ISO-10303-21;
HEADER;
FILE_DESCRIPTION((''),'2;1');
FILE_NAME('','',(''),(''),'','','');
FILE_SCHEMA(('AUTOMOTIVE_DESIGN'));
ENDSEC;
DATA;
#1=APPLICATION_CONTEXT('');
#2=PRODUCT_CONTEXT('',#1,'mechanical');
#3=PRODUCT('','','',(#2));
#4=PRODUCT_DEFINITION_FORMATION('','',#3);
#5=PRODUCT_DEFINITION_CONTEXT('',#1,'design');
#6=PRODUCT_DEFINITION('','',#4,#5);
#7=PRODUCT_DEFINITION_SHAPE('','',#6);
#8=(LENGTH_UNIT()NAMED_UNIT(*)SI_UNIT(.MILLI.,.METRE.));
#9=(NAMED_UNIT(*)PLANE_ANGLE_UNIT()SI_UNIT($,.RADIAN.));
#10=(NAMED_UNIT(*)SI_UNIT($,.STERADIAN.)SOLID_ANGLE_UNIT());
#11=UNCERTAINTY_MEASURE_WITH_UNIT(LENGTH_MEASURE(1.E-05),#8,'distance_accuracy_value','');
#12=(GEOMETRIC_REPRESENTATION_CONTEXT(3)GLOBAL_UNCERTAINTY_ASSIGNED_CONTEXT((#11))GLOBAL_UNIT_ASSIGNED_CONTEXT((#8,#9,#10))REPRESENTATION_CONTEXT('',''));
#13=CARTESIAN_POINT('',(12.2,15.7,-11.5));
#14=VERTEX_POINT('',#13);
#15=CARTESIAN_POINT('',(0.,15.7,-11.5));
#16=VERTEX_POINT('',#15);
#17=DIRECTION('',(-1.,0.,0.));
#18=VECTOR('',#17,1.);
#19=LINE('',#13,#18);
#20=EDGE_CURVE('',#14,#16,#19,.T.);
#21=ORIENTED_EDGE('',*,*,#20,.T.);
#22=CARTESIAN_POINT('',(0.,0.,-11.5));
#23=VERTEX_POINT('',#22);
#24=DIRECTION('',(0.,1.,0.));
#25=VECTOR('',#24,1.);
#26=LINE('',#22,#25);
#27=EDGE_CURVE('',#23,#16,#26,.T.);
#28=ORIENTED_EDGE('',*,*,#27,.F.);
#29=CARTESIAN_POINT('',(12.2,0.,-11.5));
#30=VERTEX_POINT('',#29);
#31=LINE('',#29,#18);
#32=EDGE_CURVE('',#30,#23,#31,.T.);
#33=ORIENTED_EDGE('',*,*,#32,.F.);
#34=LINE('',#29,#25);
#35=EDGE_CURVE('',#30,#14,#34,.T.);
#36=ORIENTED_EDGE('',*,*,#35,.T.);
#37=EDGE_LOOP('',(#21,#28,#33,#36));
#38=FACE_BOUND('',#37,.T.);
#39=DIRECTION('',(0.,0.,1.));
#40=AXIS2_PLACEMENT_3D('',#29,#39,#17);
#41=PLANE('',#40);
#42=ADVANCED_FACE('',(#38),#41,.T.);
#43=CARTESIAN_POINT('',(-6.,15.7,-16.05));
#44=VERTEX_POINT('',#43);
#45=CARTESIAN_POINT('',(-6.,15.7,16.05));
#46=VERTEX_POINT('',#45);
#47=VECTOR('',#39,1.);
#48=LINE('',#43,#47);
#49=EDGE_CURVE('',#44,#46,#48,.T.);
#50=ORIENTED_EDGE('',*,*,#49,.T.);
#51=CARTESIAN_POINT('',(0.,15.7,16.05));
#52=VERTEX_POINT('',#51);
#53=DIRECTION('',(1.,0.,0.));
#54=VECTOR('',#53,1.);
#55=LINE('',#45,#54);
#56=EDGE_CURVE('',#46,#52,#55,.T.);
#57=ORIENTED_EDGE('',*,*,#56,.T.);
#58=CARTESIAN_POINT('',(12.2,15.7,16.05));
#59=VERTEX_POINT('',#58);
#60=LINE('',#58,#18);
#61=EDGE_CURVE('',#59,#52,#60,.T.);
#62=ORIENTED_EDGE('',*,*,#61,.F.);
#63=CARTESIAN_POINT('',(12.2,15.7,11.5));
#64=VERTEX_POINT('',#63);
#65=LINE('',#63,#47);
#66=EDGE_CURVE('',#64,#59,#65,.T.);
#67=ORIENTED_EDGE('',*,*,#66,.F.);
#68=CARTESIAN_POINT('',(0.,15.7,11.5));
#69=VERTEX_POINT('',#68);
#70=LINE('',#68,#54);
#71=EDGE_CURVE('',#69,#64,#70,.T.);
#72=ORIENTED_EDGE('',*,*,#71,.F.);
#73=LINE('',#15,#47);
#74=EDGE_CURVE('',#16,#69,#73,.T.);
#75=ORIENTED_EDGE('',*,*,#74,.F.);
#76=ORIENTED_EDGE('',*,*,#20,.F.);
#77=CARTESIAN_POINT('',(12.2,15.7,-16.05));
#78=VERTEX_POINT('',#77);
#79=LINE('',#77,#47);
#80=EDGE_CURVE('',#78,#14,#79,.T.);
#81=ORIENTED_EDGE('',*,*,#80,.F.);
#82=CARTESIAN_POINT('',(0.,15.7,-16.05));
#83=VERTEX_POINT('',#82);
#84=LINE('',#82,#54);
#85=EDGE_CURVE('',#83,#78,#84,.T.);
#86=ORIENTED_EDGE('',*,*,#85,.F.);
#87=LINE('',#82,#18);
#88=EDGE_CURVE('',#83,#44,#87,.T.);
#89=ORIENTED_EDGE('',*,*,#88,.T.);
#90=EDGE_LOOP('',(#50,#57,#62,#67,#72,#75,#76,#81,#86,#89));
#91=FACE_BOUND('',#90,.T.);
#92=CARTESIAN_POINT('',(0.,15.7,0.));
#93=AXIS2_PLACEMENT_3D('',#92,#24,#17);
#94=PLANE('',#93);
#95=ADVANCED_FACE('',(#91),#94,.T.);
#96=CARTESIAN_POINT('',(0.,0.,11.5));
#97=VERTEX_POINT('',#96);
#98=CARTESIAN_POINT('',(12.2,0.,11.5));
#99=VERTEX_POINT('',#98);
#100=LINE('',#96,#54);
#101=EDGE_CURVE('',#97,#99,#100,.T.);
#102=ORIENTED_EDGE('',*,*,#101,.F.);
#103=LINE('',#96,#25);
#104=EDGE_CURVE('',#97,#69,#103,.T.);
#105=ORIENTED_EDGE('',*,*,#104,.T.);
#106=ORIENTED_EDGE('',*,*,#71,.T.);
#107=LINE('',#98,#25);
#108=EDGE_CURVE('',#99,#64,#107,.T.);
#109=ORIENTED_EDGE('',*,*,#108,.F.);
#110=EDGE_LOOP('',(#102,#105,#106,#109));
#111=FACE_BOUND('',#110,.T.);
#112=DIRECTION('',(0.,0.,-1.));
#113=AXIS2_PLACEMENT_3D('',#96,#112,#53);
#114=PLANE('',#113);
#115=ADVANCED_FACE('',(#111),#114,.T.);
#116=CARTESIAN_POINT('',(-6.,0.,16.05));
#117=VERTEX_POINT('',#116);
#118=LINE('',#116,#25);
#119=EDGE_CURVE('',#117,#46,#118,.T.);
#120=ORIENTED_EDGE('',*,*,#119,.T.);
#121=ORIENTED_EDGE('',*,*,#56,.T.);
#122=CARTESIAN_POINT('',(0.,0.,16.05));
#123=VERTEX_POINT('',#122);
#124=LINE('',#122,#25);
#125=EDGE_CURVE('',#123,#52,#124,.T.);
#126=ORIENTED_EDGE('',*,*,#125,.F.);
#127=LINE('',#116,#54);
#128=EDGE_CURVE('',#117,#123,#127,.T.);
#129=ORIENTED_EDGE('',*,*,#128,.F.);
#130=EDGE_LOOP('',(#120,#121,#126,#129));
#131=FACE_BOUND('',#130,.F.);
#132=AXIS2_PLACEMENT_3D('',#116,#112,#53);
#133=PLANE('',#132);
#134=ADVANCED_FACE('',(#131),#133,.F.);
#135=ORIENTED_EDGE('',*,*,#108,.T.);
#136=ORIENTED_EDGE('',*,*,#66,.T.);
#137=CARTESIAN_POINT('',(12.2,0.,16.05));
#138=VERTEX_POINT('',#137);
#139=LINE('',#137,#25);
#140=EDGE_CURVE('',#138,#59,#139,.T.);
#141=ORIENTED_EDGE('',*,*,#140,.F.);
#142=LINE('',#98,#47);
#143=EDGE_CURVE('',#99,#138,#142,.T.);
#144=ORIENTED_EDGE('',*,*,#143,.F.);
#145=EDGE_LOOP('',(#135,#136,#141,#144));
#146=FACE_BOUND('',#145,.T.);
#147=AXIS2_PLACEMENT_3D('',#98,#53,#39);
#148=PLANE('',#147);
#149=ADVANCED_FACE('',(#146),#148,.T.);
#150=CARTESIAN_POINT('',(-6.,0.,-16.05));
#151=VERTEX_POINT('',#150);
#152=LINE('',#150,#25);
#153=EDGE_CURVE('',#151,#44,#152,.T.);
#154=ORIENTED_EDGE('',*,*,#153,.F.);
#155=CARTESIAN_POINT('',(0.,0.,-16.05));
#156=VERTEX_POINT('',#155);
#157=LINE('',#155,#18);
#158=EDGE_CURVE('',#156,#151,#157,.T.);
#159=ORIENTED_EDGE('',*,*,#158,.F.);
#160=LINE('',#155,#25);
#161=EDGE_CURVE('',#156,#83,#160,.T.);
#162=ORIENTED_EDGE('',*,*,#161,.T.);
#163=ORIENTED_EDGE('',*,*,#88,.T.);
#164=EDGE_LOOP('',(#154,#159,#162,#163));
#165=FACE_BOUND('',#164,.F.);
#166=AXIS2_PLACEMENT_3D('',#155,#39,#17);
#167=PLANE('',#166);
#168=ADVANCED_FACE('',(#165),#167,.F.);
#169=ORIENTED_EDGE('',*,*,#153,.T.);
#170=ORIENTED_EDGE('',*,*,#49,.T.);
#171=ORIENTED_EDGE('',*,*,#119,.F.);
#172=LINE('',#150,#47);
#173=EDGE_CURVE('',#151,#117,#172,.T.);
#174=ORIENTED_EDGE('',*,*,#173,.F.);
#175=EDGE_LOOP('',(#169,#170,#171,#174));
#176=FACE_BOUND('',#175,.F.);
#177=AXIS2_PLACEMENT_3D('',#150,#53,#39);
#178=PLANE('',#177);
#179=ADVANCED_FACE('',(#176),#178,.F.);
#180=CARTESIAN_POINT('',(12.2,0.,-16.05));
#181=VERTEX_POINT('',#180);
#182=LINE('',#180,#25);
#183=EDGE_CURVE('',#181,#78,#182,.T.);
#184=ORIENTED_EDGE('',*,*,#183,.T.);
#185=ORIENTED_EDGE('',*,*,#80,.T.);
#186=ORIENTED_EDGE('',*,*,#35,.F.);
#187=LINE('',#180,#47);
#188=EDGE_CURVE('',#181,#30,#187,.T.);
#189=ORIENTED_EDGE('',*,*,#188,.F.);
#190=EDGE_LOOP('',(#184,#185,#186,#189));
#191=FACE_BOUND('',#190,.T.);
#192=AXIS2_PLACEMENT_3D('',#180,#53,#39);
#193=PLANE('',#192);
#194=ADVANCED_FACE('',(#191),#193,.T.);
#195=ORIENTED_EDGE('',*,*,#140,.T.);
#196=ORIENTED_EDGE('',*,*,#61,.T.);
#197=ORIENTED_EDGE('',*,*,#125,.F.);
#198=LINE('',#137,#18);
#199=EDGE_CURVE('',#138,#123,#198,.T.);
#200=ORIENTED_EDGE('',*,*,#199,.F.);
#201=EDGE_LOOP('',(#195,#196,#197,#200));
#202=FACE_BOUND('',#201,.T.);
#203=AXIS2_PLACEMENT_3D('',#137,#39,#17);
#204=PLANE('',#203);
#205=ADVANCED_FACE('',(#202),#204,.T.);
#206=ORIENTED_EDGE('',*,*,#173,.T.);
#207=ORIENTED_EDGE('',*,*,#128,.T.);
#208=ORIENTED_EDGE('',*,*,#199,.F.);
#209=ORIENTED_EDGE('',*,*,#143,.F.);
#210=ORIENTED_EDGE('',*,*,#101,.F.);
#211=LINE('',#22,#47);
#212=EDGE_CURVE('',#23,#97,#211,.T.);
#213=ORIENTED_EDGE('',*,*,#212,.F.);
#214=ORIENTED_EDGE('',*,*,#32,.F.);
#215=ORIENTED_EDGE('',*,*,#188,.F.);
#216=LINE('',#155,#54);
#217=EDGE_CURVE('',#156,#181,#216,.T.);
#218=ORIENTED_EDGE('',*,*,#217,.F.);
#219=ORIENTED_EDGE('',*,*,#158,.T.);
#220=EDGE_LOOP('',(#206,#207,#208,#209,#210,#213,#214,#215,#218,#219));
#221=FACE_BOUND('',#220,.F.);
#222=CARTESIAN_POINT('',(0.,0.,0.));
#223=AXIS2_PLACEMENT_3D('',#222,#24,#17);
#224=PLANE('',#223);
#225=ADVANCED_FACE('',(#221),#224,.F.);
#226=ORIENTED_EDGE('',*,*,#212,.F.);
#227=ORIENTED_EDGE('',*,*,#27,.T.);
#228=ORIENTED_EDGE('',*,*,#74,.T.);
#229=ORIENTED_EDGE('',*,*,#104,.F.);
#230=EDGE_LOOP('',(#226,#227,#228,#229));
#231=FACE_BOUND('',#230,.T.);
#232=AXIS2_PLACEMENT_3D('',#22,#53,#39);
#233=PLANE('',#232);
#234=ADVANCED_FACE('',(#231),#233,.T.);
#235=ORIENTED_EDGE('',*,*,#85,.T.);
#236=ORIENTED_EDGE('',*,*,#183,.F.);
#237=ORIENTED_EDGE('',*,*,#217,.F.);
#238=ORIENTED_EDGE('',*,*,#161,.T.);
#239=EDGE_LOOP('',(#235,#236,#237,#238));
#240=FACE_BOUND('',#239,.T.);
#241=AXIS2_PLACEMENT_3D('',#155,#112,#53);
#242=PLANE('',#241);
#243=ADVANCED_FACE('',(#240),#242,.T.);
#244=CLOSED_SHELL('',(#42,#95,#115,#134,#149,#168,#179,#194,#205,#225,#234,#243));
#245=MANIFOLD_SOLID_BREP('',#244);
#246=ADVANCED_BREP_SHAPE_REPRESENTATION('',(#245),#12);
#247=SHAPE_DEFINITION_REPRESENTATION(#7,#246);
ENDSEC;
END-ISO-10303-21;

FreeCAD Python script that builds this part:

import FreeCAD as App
import Part
import Sketcher
from FreeCAD import Vector

doc = App.newDocument("Part")
body = doc.addObject("PartDesign::Body", "Body")

sketch1 = body.newObject("Sketcher::SketchObject", "Sketch")
sketch1.AttachmentSupport = (doc.getObject("XZ_Plane"), [""])
sketch1.MapMode = "FlatFace"
sketch1.addGeometry(Part.LineSegment(Vector(12.2, -16.1, 0), Vector(-6, -16.1, 0)), False)
sketch1.addGeometry(Part.LineSegment(Vector(-6, -16.1, 0), Vector(-6, 16.1, 0)), False)
sketch1.addGeometry(Part.LineSegment(Vector(-6, 16.1, 0), Vector(12.2, 16.1, 0)), False)
sketch1.addGeometry(Part.LineSegment(Vector(12.2, 16.1, 0), Vector(12.2, 11.5, 0)), False)
sketch1.addGeometry(Part.LineSegment(Vector(12.2, 11.5, 0), Vector(0, 11.5, 0)), False)
sketch1.addGeometry(Part.LineSegment(Vector(0, 11.5, 0), Vector(0, -11.5, 0)), False)
sketch1.addGeometry(Part.LineSegment(Vector(0, -11.5, 0), Vector(12.2, -11.5, 0)), False)
sketch1.addGeometry(Part.LineSegment(Vector(12.2, -11.5, 0), Vector(12.2, -16.1, 0)), False)
sketch1.addConstraint(Sketcher.Constraint("Coincident", 0, 2, 1, 1))
sketch1.addConstraint(Sketcher.Constraint("Coincident", 1, 2, 2, 1))
sketch1.addConstraint(Sketcher.Constraint("Coincident", 2, 2, 3, 1))
sketch1.addConstraint(Sketcher.Constraint("Coincident", 3, 2, 4, 1))
sketch1.addConstraint(Sketcher.Constraint("Coincident", 4, 2, 5, 1))
sketch1.addConstraint(Sketcher.Constraint("Coincident", 5, 2, 6, 1))
sketch1.addConstraint(Sketcher.Constraint("Coincident", 6, 2, 7, 1))
sketch1.addConstraint(Sketcher.Constraint("Coincident", 7, 2, 0, 1))
sketch1.addConstraint(Sketcher.Constraint("Horizontal", 0))
sketch1.addConstraint(Sketcher.Constraint("Vertical", 1))
sketch1.addConstraint(Sketcher.Constraint("Horizontal", 2))
sketch1.addConstraint(Sketcher.Constraint("Vertical", 3))
sketch1.addConstraint(Sketcher.Constraint("Horizontal", 4))
sketch1.addConstraint(Sketcher.Constraint("Vertical", 5))
sketch1.addConstraint(Sketcher.Constraint("Horizontal", 6))
sketch1.addConstraint(Sketcher.Constraint("Vertical", 7))
sketch1.addConstraint(Sketcher.Constraint("Symmetric", 4, 2, 5, 2, -1, 1))
sketch1.addConstraint(Sketcher.Constraint("Symmetric", 2, 2, 7, 2, -1))
sketch1.addConstraint(Sketcher.Constraint("DistanceY", 5, 2, 5, 1, 23.0))
sketch1.addConstraint(Sketcher.Constraint("DistanceX", 4, 2, 4, 1, 12.2))
sketch1.addConstraint(Sketcher.Constraint("DistanceY", 1, 1, 1, 2, 32.1))
sketch1.addConstraint(Sketcher.Constraint("DistanceX", 0, 2, -1, 1, 6.0))
pad1 = body.newObject("PartDesign::Pad", "Pad")
pad1.Profile = sketch1
pad1.Length = 15.7
pad1.Reversed = True

doc.recompute()
